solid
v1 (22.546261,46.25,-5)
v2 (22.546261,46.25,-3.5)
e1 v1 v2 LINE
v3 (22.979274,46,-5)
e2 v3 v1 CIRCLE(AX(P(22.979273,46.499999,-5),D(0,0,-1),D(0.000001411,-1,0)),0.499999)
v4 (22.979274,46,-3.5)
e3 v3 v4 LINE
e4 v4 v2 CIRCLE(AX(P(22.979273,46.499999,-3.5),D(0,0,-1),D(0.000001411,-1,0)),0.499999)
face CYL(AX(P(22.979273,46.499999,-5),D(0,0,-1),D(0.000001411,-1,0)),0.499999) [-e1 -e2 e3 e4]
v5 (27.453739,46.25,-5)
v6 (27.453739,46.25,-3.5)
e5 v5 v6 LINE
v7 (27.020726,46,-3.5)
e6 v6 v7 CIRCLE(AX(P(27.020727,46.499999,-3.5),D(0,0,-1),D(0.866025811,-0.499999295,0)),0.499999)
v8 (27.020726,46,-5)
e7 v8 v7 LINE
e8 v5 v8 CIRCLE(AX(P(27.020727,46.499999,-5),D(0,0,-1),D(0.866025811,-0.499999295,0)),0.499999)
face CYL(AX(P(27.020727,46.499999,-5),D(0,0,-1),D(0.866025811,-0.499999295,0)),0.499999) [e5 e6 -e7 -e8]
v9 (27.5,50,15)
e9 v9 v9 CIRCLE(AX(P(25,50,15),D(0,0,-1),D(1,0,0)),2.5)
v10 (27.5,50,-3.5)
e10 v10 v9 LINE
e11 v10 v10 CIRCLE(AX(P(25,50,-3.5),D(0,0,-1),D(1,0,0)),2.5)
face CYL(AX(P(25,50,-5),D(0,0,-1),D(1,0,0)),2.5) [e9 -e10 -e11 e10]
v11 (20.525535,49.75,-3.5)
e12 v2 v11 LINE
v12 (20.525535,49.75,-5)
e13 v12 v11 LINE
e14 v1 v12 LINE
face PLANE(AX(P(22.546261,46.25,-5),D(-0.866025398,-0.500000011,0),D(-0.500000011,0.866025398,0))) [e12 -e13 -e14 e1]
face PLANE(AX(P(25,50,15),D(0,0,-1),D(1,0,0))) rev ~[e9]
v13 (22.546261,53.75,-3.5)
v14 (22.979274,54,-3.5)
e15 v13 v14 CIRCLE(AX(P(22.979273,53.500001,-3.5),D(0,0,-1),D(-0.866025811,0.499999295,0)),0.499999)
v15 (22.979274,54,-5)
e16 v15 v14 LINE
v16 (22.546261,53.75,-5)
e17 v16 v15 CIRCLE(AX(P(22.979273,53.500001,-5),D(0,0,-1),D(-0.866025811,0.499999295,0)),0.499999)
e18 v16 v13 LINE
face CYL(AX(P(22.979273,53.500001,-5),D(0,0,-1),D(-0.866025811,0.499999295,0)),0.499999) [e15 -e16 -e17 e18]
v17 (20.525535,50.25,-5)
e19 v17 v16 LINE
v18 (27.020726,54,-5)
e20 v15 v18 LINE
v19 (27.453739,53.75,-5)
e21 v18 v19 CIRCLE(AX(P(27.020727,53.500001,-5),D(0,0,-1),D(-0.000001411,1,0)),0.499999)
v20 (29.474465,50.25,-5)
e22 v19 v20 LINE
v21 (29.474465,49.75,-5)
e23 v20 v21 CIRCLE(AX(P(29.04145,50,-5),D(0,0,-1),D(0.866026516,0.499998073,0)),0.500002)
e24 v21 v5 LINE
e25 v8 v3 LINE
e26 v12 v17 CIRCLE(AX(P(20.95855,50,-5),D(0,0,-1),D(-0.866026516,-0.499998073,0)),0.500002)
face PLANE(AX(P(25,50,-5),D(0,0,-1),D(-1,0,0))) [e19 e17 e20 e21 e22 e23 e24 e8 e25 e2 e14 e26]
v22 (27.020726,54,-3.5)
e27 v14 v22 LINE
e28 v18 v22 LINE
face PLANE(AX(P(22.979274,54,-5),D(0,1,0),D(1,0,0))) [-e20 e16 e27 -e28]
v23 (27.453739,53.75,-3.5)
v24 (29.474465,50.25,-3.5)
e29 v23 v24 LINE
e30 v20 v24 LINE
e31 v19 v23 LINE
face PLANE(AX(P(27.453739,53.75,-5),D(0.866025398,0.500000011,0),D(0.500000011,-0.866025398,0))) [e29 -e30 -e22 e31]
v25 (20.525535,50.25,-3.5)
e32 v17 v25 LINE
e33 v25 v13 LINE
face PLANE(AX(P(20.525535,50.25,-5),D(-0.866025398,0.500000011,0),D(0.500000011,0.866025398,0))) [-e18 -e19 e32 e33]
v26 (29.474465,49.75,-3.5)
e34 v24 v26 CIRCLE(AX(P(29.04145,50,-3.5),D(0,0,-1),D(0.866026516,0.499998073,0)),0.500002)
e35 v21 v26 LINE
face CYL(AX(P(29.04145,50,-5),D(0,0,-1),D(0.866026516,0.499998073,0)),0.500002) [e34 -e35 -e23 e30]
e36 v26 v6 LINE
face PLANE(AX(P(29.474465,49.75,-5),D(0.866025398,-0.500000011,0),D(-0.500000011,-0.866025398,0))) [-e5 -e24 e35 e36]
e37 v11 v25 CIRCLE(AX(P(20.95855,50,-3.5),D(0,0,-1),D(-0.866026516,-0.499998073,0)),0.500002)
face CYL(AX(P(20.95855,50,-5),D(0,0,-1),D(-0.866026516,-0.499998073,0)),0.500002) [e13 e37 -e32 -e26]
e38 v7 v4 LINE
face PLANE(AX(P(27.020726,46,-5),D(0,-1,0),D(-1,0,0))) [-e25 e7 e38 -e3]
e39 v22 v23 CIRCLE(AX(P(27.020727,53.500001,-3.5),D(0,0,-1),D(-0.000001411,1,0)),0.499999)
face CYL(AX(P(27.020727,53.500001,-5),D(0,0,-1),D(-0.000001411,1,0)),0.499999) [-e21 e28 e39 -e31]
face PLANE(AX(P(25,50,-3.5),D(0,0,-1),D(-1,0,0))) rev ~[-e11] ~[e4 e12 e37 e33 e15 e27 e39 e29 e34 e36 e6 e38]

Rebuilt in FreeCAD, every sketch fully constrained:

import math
import FreeCAD as App
import Part
import Sketcher
from FreeCAD import Vector
Q = App.Units.Quantity

doc = App.newDocument("Part")
body = doc.addObject("PartDesign::Body", "Body")

# Sketch on XY plane
sketch1 = body.newObject("Sketcher::SketchObject", "Sketch")
sketch1.AttachmentSupport = (doc.getObject("XY_Plane"), [""])
sketch1.MapMode = "FlatFace"
sketch1.addGeometry([
    Part.LineSegment(Vector(4.47, 0.25, 0), Vector(2.45, 3.75, 0)),  # 0
    Part.ArcOfCircle(Part.Circle(Vector(2.02, 3.5, 0), Vector(0, 0, 1), 0.5), math.radians(30), math.radians(90)),  # 1
    Part.LineSegment(Vector(2.02, 4, 0), Vector(-2.02, 4, 0)),  # 2
    Part.ArcOfCircle(Part.Circle(Vector(-2.02, 3.5, 0), Vector(0, 0, 1), 0.5), math.radians(90), math.radians(150)),  # 3
    Part.LineSegment(Vector(-2.45, 3.75, 0), Vector(-4.47, 0.25, 0)),  # 4
    Part.ArcOfCircle(Part.Circle(Vector(-4.04, 0, 0), Vector(0, 0, 1), 0.5), math.radians(150), math.radians(210)),  # 5
    Part.LineSegment(Vector(-4.47, -0.25, 0), Vector(-2.45, -3.75, 0)),  # 6
    Part.ArcOfCircle(Part.Circle(Vector(-2.02, -3.5, 0), Vector(0, 0, 1), 0.5), math.radians(-150), math.radians(-90)),  # 7
    Part.LineSegment(Vector(-2.02, -4, 0), Vector(2.02, -4, 0)),  # 8
    Part.ArcOfCircle(Part.Circle(Vector(2.02, -3.5, 0), Vector(0, 0, 1), 0.5), math.radians(-90), math.radians(-30)),  # 9
    Part.LineSegment(Vector(2.45, -3.75, 0), Vector(4.47, -0.25, 0)),  # 10
    Part.ArcOfCircle(Part.Circle(Vector(4.04, 0, 0), Vector(0, 0, 1), 0.5), math.radians(-30), math.radians(30)),  # 11
], False)
sketch1.addConstraint([
    Sketcher.Constraint("Tangent", 0, 2, 1, 1),
    Sketcher.Constraint("Tangent", 1, 2, 2, 1),
    Sketcher.Constraint("Tangent", 2, 2, 3, 1),
    Sketcher.Constraint("Tangent", 3, 2, 4, 1),
    Sketcher.Constraint("Coincident", 4, 2, 5, 1),
    Sketcher.Constraint("Coincident", 5, 2, 6, 1),
    Sketcher.Constraint("Tangent", 6, 2, 7, 1),
    Sketcher.Constraint("Tangent", 7, 2, 8, 1),
    Sketcher.Constraint("Tangent", 8, 2, 9, 1),
    Sketcher.Constraint("Tangent", 9, 2, 10, 1),
    Sketcher.Constraint("Coincident", 10, 2, 11, 1),
    Sketcher.Constraint("Coincident", 11, 2, 0, 1),
    Sketcher.Constraint("Horizontal", 2),
    Sketcher.Constraint("Horizontal", 8),
    Sketcher.Constraint("Equal", 1, 3),
    Sketcher.Constraint("Equal", 3, 7),
    Sketcher.Constraint("Equal", 7, 9),
    Sketcher.Constraint("Equal", 5, 11),
    Sketcher.Constraint("Symmetric", 1, 3, 7, 3, -1, 1),
    Sketcher.Constraint("Symmetric", 5, 3, 11, 3, -1, 1),
    Sketcher.Constraint("Symmetric", 0, 2, 3, 2, -2),
    Sketcher.Constraint("Parallel", 4, 10),
    Sketcher.Constraint("Horizontal", 5, 2, 10, 2),
    Sketcher.Constraint("Horizontal", 4, 2, 11, 2),
    Sketcher.Constraint("Vertical", 4, 2, 5, 2),
    Sketcher.Constraint("Radius", 1, Q("0.499999 mm")),
    Sketcher.Constraint("Radius", 5, Q("0.500002 mm")),
    Sketcher.Constraint("Angle", 0, Q("120.000001 deg")),
    Sketcher.Constraint("DistanceY", -1, 1, 1, 2, Q("4 mm")),
    Sketcher.Constraint("DistanceY", 5, 2, 3, 2, Q("4 mm")),
    Sketcher.Constraint("DistanceX", 2, 2, 2, 1, Q("4.041452 mm")),
])
pad1 = body.newObject("PartDesign::Pad", "Pad")
pad1.Profile = sketch1
pad1.Length = 1.5
body2 = doc.addObject("PartDesign::Body", "Body001")

# Sketch on XY plane
sketch2 = body2.newObject("Sketcher::SketchObject", "Sketch001")
sketch2.AttachmentSupport = (doc.getObject("XY_Plane001"), [""])
sketch2.MapMode = "FlatFace"
sketch2.addGeometry(Part.Circle(Vector(0, 0, 0), Vector(0, 0, 1), 2.5), False)
sketch2.addConstraint([
    Sketcher.Constraint("Coincident", 0, 3, -1, 1),
    Sketcher.Constraint("Diameter", 0, Q("5 mm")),
])
pad2 = body2.newObject("PartDesign::Pad", "Pad001")
pad2.Profile = sketch2
pad2.Length = 20
doc.recompute()

boolean = body2.newObject("PartDesign::Boolean", "Boolean")
boolean.Type = "Fuse"
boolean.addObjects([body])
body3 = doc.addObject("PartDesign::Body", "Body002")
doc.recompute()

body2.Placement = App.Placement(Vector(25, 50, -5), App.Rotation(Vector(0, 0, 1), 0))
boolean2 = body3.newObject("PartDesign::Boolean", "Boolean001")
boolean2.Type = "Fuse"
boolean2.addObjects([body2])

doc.recompute()
